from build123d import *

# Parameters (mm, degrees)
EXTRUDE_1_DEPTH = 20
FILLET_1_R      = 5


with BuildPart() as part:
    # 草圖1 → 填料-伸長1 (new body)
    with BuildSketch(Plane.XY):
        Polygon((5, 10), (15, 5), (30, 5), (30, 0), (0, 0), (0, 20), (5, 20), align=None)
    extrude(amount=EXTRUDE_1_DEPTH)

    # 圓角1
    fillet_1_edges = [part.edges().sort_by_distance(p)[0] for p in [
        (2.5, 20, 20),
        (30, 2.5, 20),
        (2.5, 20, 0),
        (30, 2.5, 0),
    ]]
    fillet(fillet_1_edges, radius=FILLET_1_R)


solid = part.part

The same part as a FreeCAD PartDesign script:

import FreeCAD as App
import Part
import Sketcher

V = App.Vector


def edges_at(feature, points):
    """Names of the edges that pass closest to the given points."""
    edges = feature.Shape.Edges
    near = lambda p: min(range(len(edges)), key=lambda i: edges[i].distToShape(Part.Vertex(*p))[0])
    return sorted({f"Edge{near(p) + 1}" for p in points})

doc = App.newDocument("Part")
body = doc.addObject("PartDesign::Body", "Body")

sketch1 = body.newObject("Sketcher::SketchObject", "Sketch")
sketch1.AttachmentSupport = (doc.getObject("XY_Plane"), [""])
sketch1.MapMode = "FlatFace"
sketch1.addGeometry(Part.LineSegment(V(15, 5, 0), V(5, 10, 0)), False)
sketch1.addGeometry(Part.LineSegment(V(5, 10, 0), V(5, 20, 0)), False)
sketch1.addGeometry(Part.LineSegment(V(5, 20, 0), V(0, 20, 0)), False)
sketch1.addGeometry(Part.LineSegment(V(0, 20, 0), V(0, 0, 0)), False)
sketch1.addGeometry(Part.LineSegment(V(0, 0, 0), V(30, 0, 0)), False)
sketch1.addGeometry(Part.LineSegment(V(30, 0, 0), V(30, 5, 0)), False)
sketch1.addGeometry(Part.LineSegment(V(30, 5, 0), V(15, 5, 0)), False)
sketch1.addConstraint(Sketcher.Constraint("Coincident", 0, 2, 1, 1))
sketch1.addConstraint(Sketcher.Constraint("Coincident", 1, 2, 2, 1))
sketch1.addConstraint(Sketcher.Constraint("Coincident", 2, 2, 3, 1))
sketch1.addConstraint(Sketcher.Constraint("Coincident", 3, 2, 4, 1))
sketch1.addConstraint(Sketcher.Constraint("Coincident", 4, 2, 5, 1))
sketch1.addConstraint(Sketcher.Constraint("Coincident", 5, 2, 6, 1))
sketch1.addConstraint(Sketcher.Constraint("Coincident", 6, 2, 0, 1))
sketch1.addConstraint(Sketcher.Constraint("Vertical", 1))
sketch1.addConstraint(Sketcher.Constraint("Horizontal", 2))
sketch1.addConstraint(Sketcher.Constraint("Vertical", 3))
sketch1.addConstraint(Sketcher.Constraint("Horizontal", 4))
sketch1.addConstraint(Sketcher.Constraint("Vertical", 5))
sketch1.addConstraint(Sketcher.Constraint("Horizontal", 6))
sketch1.addConstraint(Sketcher.Constraint("Coincident", 3, 2, -1, 1))
sketch1.addConstraint(Sketcher.Constraint("Equal", 2, 5))
sketch1.addConstraint(Sketcher.Constraint("DistanceX", 2, 2, 2, 1, 5.0))
sketch1.addConstraint(Sketcher.Constraint("DistanceX", 4, 1, 4, 2, 30.0))
sketch1.addConstraint(Sketcher.Constraint("DistanceX", 6, 2, 6, 1, 15.0))
sketch1.addConstraint(Sketcher.Constraint("DistanceY", 1, 1, 1, 2, 10.0))
sketch1.addConstraint(Sketcher.Constraint("DistanceY", 3, 2, 3, 1, 20.0))
pad1 = body.newObject("PartDesign::Pad", "Pad")
pad1.Profile = sketch1
pad1.Length = 20
doc.recompute()

fillet = body.newObject("PartDesign::Fillet", "Fillet")
fillet.Base = (pad1, edges_at(pad1, [
    (2.5, 20, 20),
    (30, 2.5, 20),
    (2.5, 20, 0),
    (30, 2.5, 0),
]))
fillet.Radius = 5

doc.recompute()
